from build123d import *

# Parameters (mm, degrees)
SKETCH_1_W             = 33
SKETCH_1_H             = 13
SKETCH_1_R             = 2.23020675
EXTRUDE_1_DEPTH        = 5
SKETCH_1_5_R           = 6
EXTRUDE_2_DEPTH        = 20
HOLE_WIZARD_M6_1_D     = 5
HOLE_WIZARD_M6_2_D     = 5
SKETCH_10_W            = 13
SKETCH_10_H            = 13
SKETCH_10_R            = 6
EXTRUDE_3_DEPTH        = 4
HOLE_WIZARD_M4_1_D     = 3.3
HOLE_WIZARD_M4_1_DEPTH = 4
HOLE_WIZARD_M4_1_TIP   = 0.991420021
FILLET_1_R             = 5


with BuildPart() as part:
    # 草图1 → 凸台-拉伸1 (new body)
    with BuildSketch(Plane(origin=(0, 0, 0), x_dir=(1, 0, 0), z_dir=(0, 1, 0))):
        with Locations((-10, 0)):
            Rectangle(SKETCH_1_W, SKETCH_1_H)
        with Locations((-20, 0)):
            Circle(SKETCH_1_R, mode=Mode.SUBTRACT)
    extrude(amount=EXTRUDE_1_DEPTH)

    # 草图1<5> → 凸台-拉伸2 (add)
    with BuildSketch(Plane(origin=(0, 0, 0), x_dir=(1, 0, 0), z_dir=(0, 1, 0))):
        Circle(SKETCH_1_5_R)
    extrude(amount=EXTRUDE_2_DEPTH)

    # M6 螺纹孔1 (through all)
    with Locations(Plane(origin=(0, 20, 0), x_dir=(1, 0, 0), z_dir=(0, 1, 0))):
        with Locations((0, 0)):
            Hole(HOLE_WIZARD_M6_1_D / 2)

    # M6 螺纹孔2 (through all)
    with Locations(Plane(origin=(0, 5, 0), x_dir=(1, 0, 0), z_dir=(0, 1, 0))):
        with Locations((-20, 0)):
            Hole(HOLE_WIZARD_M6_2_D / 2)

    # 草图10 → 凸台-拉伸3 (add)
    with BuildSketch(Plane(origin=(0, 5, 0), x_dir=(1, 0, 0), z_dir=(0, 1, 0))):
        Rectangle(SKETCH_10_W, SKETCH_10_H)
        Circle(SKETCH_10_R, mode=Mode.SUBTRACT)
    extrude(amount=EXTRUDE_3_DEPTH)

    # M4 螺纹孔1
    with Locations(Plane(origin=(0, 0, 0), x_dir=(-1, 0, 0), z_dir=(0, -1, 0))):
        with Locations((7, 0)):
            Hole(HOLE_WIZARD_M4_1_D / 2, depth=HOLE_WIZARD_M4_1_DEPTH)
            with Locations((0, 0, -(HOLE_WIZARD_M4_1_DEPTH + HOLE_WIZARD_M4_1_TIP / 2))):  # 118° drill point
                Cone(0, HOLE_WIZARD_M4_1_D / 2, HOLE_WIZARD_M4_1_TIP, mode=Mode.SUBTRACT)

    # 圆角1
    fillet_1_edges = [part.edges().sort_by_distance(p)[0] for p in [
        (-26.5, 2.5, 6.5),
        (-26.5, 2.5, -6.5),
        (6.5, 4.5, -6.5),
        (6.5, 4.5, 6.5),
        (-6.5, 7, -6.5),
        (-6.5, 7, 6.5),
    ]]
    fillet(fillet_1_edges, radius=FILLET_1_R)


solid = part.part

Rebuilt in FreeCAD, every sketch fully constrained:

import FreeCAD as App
import Part
import Sketcher
Q = App.Units.Quantity


def edges_at(feature, points):
    """Names of the edges that pass closest to the given points."""
    edges = feature.Shape.Edges
    near = lambda p: min(range(len(edges)), key=lambda i: edges[i].distToShape(Part.Vertex(*p))[0])
    return sorted({f"Edge{near(p) + 1}" for p in points})


def add_polygon(sketch, points):
    """Adds a closed chain of lines whose ends are joined by coincident constraints."""
    first, n = sketch.GeometryCount, len(points)
    for a, b in zip(points, points[1:] + points[:1]):
        sketch.addGeometry(Part.LineSegment(App.Vector(*a, 0), App.Vector(*b, 0)), False)
    for i in range(n):
        sketch.addConstraint(Sketcher.Constraint("Coincident", first + i, 2, first + (i + 1) % n, 1))

doc = App.newDocument("Part")
body = doc.addObject("PartDesign::Body", "Body")

# Sketch on XZ plane
sketch1 = body.newObject("Sketcher::SketchObject", "Sketch")
sketch1.AttachmentSupport = (doc.getObject("XZ_Plane"), [""])
sketch1.MapMode = "FlatFace"
add_polygon(sketch1, [(-26.5, -6.5), (-26.5, 6.5), (6.5, 6.5), (6.5, -6.5)])  # lines 0-3
sketch1.addGeometry(Part.Circle(App.Vector(-20, 0, 0), App.Vector(0, 0, 1), 2.2), False)  # 4
sketch1.addConstraint([
    Sketcher.Constraint("Vertical", 0),
    Sketcher.Constraint("Horizontal", 1),
    Sketcher.Constraint("Vertical", 2),
    Sketcher.Constraint("Horizontal", 3),
    Sketcher.Constraint("PointOnObject", 4, 3, -1),
    Sketcher.Constraint("DistanceX", 1, 1, 1, 2, Q("33 mm")),
    Sketcher.Constraint("DistanceY", 0, 1, 0, 2, Q("13 mm")),
    Sketcher.Constraint("DistanceX", 4, 3, -1, 1, Q("20 mm")),
    Sketcher.Constraint("DistanceX", 0, 2, -1, 1, Q("26.5 mm")),
    Sketcher.Constraint("DistanceY", -1, 1, 0, 2, Q("6.5 mm")),
    Sketcher.Constraint("Diameter", 4, Q("4.460413 mm")),
])
pad1 = body.newObject("PartDesign::Pad", "Pad")
pad1.Profile = sketch1
pad1.Length = 5
pad1.Reversed = True

# Sketch on XZ plane
sketch2 = body.newObject("Sketcher::SketchObject", "Sketch001")
sketch2.AttachmentSupport = (doc.getObject("XZ_Plane"), [""])
sketch2.MapMode = "FlatFace"
sketch2.addGeometry(Part.Circle(App.Vector(0, 0, 0), App.Vector(0, 0, 1), 6), False)
sketch2.addConstraint([
    Sketcher.Constraint("Coincident", 0, 3, -1, 1),
    Sketcher.Constraint("Diameter", 0, Q("12 mm")),
])
pad2 = body.newObject("PartDesign::Pad", "Pad001")
pad2.Profile = sketch2
pad2.Length = 20
pad2.Reversed = True

# Sketch on XZ plane
sketch3 = body.newObject("Sketcher::SketchObject", "Sketch002")
sketch3.AttachmentSupport = (doc.getObject("XZ_Plane"), [""])
sketch3.MapMode = "FlatFace"
sketch3.AttachmentOffset = App.Placement(App.Vector(0, 0, -20), App.Rotation())
sketch3.addGeometry(Part.Circle(App.Vector(0, 0, 0), App.Vector(0, 0, 1), 2.5), False)
sketch3.addConstraint([
    Sketcher.Constraint("Coincident", 0, 3, -1, 1),
    Sketcher.Constraint("Diameter", 0, Q("5 mm")),
])
doc.recompute()
hole = body.newObject("PartDesign::Hole", "Hole")
hole.Profile = sketch3
hole.ThreadType = "None"
hole.Diameter = 5
hole.DepthType = "ThroughAll"
hole.Reversed = True

# Sketch on XZ plane
sketch4 = body.newObject("Sketcher::SketchObject", "Sketch003")
sketch4.AttachmentSupport = (doc.getObject("XZ_Plane"), [""])
sketch4.MapMode = "FlatFace"
sketch4.AttachmentOffset = App.Placement(App.Vector(0, 0, -5), App.Rotation())
sketch4.addGeometry(Part.Circle(App.Vector(-20, 0, 0), App.Vector(0, 0, 1), 2.5), False)
sketch4.addConstraint([
    Sketcher.Constraint("PointOnObject", 0, 3, -1),
    Sketcher.Constraint("Diameter", 0, Q("5 mm")),
    Sketcher.Constraint("DistanceX", 0, 3, -1, 1, Q("20 mm")),
])
doc.recompute()
hole2 = body.newObject("PartDesign::Hole", "Hole001")
hole2.Profile = sketch4
hole2.ThreadType = "None"
hole2.Diameter = 5
hole2.DepthType = "ThroughAll"
hole2.Reversed = True

# Sketch on XZ plane
sketch5 = body.newObject("Sketcher::SketchObject", "Sketch004")
sketch5.AttachmentSupport = (doc.getObject("XZ_Plane"), [""])
sketch5.MapMode = "FlatFace"
sketch5.AttachmentOffset = App.Placement(App.Vector(0, 0, -5), App.Rotation())
add_polygon(sketch5, [(-6, -6), (-6, 6), (6, 6), (6, -6)])  # lines 0-3
sketch5.addGeometry(Part.Circle(App.Vector(0, 0, 0), App.Vector(0, 0, 1), 6), False)  # 4
sketch5.addConstraint([
    Sketcher.Constraint("Vertical", 0),
    Sketcher.Constraint("Horizontal", 1),
    Sketcher.Constraint("Vertical", 2),
    Sketcher.Constraint("Horizontal", 3),
    Sketcher.Constraint("Coincident", 4, 3, -1, 1),
    Sketcher.Constraint("Symmetric", 0, 2, 2, 2, -1, 1),
    Sketcher.Constraint("Equal", 3, 0),
    Sketcher.Constraint("Diameter", 4, Q("12 mm")),
    Sketcher.Constraint("DistanceX", 1, 1, 1, 2, Q("13 mm")),
])
pad3 = body.newObject("PartDesign::Pad", "Pad002")
pad3.Profile = sketch5
pad3.Length = 4
pad3.Reversed = True

# Sketch on XZ plane
sketch6 = body.newObject("Sketcher::SketchObject", "Sketch005")
sketch6.AttachmentSupport = (doc.getObject("XZ_Plane"), [""])
sketch6.MapMode = "FlatFace"
sketch6.addGeometry(Part.Circle(App.Vector(-7, 0, 0), App.Vector(0, 0, 1), 1.6), False)
sketch6.addConstraint([
    Sketcher.Constraint("PointOnObject", 0, 3, -1),
    Sketcher.Constraint("Diameter", 0, Q("3.3 mm")),
    Sketcher.Constraint("DistanceX", 0, 3, -1, 1, Q("7 mm")),
])
doc.recompute()
hole3 = body.newObject("PartDesign::Hole", "Hole002")
hole3.Profile = sketch6
hole3.ThreadType = "None"
hole3.Diameter = 3.3
hole3.DepthType = "Dimension"
hole3.Depth = 4
hole3.DrillPoint = "Angled"
hole3.DrillPointAngle = 118
doc.recompute()

fillet = body.newObject("PartDesign::Fillet", "Fillet")
fillet.Base = (hole3, edges_at(hole3, [
    (-26.5, 2.5, 6.5),
    (-26.5, 2.5, -6.5),
    (6.5, 4.5, -6.5),
    (6.5, 4.5, 6.5),
    (-6.5, 7, -6.5),
    (-6.5, 7, 6.5),
]))
fillet.Radius = 5

doc.recompute()
